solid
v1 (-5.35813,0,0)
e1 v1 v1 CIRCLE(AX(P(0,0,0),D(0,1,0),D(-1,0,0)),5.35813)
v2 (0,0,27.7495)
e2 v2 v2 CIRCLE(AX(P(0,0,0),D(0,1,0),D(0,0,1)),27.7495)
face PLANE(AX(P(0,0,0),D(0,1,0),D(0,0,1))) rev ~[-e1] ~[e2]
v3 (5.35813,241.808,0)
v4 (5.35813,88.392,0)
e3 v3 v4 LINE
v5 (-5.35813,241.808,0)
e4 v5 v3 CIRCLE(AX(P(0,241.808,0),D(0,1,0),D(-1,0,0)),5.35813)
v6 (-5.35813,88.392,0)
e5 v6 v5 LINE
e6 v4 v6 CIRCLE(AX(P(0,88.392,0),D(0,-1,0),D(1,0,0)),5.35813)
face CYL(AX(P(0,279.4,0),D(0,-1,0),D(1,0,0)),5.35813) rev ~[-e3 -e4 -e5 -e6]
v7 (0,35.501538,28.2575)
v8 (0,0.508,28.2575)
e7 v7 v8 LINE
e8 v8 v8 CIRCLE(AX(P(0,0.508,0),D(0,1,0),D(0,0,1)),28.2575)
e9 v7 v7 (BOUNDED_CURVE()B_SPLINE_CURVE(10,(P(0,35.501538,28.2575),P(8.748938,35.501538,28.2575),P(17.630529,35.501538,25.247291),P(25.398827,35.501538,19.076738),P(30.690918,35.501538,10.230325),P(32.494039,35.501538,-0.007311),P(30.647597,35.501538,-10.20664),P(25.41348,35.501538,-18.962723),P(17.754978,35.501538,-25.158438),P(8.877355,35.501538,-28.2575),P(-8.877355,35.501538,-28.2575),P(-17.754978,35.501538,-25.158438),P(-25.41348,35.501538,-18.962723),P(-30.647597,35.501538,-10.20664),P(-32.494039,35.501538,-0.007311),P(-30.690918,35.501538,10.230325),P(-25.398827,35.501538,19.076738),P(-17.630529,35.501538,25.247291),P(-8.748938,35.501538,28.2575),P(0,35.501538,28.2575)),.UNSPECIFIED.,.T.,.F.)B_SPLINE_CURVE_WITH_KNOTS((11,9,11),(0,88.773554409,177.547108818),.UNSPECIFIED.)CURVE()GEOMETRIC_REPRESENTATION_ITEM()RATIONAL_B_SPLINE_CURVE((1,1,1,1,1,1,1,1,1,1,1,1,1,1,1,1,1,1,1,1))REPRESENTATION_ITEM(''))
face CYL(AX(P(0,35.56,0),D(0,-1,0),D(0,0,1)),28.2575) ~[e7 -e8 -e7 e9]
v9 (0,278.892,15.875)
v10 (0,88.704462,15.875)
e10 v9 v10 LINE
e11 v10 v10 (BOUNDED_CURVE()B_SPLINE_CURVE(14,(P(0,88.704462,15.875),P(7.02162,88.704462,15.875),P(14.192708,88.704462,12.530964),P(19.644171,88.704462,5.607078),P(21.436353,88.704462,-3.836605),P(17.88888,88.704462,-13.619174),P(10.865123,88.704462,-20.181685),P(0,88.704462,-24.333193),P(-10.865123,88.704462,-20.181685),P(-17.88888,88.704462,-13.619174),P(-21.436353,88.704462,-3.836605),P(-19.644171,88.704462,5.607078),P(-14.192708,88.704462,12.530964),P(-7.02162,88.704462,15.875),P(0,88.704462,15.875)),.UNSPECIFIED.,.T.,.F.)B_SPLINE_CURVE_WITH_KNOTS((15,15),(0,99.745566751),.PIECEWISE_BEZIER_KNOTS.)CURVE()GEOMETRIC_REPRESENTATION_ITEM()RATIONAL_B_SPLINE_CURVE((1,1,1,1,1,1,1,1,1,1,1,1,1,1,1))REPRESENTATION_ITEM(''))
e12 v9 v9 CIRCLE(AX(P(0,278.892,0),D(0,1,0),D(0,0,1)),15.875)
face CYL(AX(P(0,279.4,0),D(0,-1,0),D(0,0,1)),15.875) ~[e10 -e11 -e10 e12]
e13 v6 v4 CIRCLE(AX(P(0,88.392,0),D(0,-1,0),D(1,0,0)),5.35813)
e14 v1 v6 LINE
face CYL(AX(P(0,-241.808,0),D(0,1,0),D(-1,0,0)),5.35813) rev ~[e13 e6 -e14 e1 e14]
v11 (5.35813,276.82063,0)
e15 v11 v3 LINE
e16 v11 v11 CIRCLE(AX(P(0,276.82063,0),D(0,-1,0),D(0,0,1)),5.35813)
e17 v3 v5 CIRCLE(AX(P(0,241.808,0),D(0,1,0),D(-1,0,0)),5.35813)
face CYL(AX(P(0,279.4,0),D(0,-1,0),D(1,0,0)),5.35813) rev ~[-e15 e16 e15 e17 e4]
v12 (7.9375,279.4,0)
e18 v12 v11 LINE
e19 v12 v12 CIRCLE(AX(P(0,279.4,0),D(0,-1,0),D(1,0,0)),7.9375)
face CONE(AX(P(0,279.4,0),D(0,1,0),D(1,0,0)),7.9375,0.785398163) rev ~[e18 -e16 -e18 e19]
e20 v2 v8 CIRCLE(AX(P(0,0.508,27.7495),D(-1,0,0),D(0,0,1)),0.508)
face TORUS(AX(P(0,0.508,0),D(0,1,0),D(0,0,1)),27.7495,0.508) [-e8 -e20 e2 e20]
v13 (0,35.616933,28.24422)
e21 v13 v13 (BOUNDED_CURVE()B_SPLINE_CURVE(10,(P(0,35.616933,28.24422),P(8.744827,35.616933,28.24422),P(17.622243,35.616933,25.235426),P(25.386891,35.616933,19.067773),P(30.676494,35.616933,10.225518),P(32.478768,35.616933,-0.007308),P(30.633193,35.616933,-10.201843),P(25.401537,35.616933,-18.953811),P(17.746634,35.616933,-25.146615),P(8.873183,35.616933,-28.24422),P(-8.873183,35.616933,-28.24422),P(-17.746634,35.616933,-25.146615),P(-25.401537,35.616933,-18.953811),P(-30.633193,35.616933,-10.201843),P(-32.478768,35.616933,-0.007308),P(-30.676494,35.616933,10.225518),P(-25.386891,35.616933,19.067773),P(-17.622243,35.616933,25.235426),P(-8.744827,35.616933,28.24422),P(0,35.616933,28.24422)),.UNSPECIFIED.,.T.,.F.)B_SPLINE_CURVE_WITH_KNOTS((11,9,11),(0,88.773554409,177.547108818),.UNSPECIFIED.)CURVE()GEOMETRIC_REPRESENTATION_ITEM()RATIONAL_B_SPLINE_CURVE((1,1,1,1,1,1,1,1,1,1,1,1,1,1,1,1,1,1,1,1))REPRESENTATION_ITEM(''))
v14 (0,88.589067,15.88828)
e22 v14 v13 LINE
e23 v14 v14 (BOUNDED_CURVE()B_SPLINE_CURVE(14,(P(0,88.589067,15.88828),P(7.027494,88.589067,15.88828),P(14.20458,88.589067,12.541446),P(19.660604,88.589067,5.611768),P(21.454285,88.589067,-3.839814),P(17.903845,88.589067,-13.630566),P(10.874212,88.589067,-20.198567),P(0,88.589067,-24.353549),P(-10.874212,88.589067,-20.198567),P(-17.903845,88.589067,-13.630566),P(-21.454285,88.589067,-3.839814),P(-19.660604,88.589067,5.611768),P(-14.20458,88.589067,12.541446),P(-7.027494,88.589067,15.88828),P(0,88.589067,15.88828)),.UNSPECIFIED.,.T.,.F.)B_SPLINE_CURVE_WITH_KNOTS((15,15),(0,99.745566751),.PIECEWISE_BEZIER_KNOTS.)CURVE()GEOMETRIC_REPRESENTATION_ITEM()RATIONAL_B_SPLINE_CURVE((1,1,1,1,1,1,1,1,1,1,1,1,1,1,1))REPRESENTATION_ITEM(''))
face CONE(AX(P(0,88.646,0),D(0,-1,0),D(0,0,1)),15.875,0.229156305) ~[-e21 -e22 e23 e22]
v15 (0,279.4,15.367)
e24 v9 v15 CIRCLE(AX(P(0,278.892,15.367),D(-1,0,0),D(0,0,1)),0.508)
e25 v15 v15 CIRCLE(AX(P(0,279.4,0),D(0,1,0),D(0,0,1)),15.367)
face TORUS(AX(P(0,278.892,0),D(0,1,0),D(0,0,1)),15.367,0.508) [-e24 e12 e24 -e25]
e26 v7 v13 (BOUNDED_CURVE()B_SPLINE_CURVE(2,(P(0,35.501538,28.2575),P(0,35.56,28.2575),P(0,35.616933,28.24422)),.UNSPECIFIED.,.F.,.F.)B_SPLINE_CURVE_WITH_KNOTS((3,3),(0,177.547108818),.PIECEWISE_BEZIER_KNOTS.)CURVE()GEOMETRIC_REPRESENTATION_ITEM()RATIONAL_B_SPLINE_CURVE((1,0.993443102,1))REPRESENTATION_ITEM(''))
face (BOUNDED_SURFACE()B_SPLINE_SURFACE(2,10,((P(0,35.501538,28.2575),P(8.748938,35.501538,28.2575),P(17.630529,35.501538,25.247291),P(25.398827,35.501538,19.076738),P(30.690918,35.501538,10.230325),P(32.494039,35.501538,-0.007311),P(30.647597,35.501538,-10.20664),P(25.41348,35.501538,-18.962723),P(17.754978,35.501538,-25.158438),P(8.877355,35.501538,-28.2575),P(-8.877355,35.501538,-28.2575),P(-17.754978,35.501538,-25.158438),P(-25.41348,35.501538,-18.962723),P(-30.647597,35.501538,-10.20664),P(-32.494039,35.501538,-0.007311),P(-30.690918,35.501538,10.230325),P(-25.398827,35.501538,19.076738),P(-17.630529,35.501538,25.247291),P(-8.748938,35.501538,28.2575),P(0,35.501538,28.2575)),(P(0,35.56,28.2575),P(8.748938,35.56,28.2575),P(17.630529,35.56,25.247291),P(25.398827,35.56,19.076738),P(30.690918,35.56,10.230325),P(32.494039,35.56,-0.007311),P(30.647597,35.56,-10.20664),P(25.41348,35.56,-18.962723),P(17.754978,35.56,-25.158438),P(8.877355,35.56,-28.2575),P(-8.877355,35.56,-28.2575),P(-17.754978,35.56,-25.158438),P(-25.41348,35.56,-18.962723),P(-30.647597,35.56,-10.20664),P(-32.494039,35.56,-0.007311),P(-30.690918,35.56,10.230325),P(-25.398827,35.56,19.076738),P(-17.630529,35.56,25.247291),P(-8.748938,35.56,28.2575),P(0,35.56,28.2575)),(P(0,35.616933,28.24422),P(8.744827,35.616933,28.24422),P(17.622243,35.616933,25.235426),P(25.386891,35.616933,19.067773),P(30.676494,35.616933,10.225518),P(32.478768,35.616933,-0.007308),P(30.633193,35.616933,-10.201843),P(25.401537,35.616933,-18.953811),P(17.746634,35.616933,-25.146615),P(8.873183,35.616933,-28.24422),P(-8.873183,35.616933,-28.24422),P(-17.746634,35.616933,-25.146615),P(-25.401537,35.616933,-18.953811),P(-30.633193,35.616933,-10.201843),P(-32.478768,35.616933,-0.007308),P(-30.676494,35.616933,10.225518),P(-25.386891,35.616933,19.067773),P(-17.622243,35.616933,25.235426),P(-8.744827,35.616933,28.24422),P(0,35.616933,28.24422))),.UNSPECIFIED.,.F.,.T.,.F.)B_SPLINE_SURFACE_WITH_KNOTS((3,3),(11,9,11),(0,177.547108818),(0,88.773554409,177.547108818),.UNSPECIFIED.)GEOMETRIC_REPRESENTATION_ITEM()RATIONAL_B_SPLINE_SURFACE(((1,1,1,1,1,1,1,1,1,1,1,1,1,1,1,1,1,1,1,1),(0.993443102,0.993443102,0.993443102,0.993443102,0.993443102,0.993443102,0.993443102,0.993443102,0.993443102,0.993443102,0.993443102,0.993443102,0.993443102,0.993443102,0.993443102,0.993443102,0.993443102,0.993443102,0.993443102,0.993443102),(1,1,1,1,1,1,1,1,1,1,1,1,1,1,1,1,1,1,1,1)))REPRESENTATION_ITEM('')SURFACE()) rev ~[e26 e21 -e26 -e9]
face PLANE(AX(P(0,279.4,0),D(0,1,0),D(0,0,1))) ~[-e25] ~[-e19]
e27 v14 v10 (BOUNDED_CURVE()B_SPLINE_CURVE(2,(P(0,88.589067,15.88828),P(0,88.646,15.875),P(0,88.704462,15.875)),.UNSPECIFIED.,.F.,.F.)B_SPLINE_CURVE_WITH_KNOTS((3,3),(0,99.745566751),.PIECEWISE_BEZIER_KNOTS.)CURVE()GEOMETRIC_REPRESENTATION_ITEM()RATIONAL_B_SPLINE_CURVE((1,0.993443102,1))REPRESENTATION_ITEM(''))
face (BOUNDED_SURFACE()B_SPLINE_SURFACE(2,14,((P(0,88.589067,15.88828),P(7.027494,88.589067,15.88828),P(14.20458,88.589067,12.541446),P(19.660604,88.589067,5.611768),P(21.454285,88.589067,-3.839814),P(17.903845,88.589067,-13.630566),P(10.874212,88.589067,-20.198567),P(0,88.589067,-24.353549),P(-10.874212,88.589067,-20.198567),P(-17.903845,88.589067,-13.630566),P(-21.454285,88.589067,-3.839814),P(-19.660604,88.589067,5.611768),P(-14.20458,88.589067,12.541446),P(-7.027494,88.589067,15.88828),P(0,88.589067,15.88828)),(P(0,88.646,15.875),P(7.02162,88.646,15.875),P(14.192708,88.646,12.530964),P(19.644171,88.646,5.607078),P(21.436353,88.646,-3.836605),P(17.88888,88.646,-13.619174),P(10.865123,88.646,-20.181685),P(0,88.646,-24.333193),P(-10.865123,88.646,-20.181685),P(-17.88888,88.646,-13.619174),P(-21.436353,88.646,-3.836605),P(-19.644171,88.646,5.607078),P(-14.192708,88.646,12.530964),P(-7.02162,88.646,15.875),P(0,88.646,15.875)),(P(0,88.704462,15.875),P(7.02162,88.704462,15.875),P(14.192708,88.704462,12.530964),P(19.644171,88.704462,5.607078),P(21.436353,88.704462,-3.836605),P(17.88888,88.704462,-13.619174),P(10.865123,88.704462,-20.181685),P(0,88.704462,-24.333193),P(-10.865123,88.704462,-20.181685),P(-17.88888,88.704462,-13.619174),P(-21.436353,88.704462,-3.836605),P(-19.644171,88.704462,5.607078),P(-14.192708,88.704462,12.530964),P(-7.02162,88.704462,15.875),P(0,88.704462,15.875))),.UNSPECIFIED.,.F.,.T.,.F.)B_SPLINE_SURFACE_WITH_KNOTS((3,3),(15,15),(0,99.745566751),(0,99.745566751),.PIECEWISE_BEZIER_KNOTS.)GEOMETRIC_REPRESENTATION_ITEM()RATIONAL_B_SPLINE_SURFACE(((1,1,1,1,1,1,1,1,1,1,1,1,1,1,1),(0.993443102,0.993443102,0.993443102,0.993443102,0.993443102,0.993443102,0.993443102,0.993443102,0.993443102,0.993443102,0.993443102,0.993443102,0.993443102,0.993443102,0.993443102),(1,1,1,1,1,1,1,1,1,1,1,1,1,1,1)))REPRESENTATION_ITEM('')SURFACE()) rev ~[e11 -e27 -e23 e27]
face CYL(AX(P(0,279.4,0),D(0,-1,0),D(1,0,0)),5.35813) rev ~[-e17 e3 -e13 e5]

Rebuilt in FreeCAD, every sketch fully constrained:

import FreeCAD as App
import Part
import Sketcher

V = App.Vector
Q = App.Units.Quantity


def edges_at(feature, points):
    """Names of the edges that pass closest to the given points."""
    edges = feature.Shape.Edges
    near = lambda p: min(range(len(edges)), key=lambda i: edges[i].distToShape(Part.Vertex(*p))[0])
    return sorted({f"Edge{near(p) + 1}" for p in points})

doc = App.newDocument("Part")
body = doc.addObject("PartDesign::Body", "Body")

# Sketch on YZ plane
sketch1 = body.newObject("Sketcher::SketchObject", "Sketch")
sketch1.AttachmentSupport = (doc.getObject("YZ_Plane"), [""])
sketch1.MapMode = "FlatFace"
sketch1.addGeometry([
    Part.LineSegment(V(0, 28.2575, 0), V(0, 0, 0)),  # 0
    Part.LineSegment(V(0, 0, 0), V(279.4, 0, 0)),  # 1
    Part.LineSegment(V(279.4, 0, 0), V(279.4, 15.875, 0)),  # 2
    Part.LineSegment(V(279.4, 15.875, 0), V(88.646, 15.875, 0)),  # 3
    Part.LineSegment(V(88.646, 15.875, 0), V(35.56, 28.2575, 0)),  # 4
    Part.LineSegment(V(35.56, 28.2575, 0), V(0, 28.2575, 0)),  # 5
], False)
sketch1.addConstraint([
    Sketcher.Constraint("Coincident", 0, 2, 1, 1),
    Sketcher.Constraint("Coincident", 1, 2, 2, 1),
    Sketcher.Constraint("Coincident", 2, 2, 3, 1),
    Sketcher.Constraint("Coincident", 3, 2, 4, 1),
    Sketcher.Constraint("Coincident", 4, 2, 5, 1),
    Sketcher.Constraint("Coincident", 5, 2, 0, 1),
    Sketcher.Constraint("Vertical", 0),
    Sketcher.Constraint("Horizontal", 1),
    Sketcher.Constraint("Vertical", 2),
    Sketcher.Constraint("Horizontal", 3),
    Sketcher.Constraint("Horizontal", 5),
    Sketcher.Constraint("Coincident", 0, 2, -1, 1),
    Sketcher.Constraint("DistanceX", 1, 1, 1, 2, Q("11 in")),
    Sketcher.Constraint("DistanceX", 5, 2, 5, 1, Q("1.4 in")),
    Sketcher.Constraint("DistanceX", 3, 2, 3, 1, Q("7.51 in")),
    Sketcher.Constraint("DistanceY", 2, 1, 2, 2, Q("0.625 in")),
    Sketcher.Constraint("DistanceY", 0, 2, 0, 1, Q("1.1125 in")),
])
revolution = body.newObject("PartDesign::Revolution", "Revolution")
revolution.Profile = sketch1
revolution.ReferenceAxis = (sketch1, ["H_Axis"])
revolution.Angle = 360

# Sketch on XZ plane
sketch2 = body.newObject("Sketcher::SketchObject", "Sketch001")
sketch2.AttachmentSupport = (doc.getObject("XZ_Plane"), [""])
sketch2.MapMode = "FlatFace"
sketch2.AttachmentOffset = App.Placement(V(0, 0, -11 * 25.4), App.Rotation())
sketch2.addGeometry(Part.Circle(V(0, 0, 0), V(0, 0, 1), 5.35813), False)
sketch2.addConstraint([
    Sketcher.Constraint("Coincident", 0, 3, -1, 1),
    Sketcher.Constraint("Diameter", 0, Q("0.4219 in")),
])
doc.recompute()
hole = body.newObject("PartDesign::Hole", "Hole")
hole.Profile = sketch2
hole.ThreadType = "None"
hole.Diameter = Q("0.4219 in")
hole.DepthType = "Dimension"
hole.Depth = Q("7.52 in")
hole.DrillPoint = "Flat"
hole.HoleCutType = "Countersink"
hole.HoleCutDiameter = Q("0.625 in")
hole.HoleCutCountersinkAngle = 90
hole.Reversed = True

# Sketch on XZ plane
sketch3 = body.newObject("Sketcher::SketchObject", "Sketch002")
sketch3.AttachmentSupport = (doc.getObject("XZ_Plane"), [""])
sketch3.MapMode = "FlatFace"
sketch3.addGeometry(Part.Circle(V(0, 0, 0), V(0, 0, 1), 5.35813), False)
sketch3.addConstraint([
    Sketcher.Constraint("Coincident", 0, 3, -1, 1),
    Sketcher.Constraint("Diameter", 0, Q("0.4219 in")),
])
doc.recompute()
hole2 = body.newObject("PartDesign::Hole", "Hole001")
hole2.Profile = sketch3
hole2.ThreadType = "None"
hole2.Diameter = Q("0.4219 in")
hole2.DepthType = "Dimension"
hole2.Depth = Q("9.52 in")
hole2.DrillPoint = "Flat"
doc.recompute()

fillet = body.newObject("PartDesign::Fillet", "Fillet")
fillet.Base = (hole2, edges_at(hole2, [
    (0, 0, -28.258),
    (0, 35.56, -28.258),
    (0, 88.646, -15.875),
    (0, 279.4, -15.875),
]))
fillet.Radius = Q("0.02 in")

doc.recompute()
